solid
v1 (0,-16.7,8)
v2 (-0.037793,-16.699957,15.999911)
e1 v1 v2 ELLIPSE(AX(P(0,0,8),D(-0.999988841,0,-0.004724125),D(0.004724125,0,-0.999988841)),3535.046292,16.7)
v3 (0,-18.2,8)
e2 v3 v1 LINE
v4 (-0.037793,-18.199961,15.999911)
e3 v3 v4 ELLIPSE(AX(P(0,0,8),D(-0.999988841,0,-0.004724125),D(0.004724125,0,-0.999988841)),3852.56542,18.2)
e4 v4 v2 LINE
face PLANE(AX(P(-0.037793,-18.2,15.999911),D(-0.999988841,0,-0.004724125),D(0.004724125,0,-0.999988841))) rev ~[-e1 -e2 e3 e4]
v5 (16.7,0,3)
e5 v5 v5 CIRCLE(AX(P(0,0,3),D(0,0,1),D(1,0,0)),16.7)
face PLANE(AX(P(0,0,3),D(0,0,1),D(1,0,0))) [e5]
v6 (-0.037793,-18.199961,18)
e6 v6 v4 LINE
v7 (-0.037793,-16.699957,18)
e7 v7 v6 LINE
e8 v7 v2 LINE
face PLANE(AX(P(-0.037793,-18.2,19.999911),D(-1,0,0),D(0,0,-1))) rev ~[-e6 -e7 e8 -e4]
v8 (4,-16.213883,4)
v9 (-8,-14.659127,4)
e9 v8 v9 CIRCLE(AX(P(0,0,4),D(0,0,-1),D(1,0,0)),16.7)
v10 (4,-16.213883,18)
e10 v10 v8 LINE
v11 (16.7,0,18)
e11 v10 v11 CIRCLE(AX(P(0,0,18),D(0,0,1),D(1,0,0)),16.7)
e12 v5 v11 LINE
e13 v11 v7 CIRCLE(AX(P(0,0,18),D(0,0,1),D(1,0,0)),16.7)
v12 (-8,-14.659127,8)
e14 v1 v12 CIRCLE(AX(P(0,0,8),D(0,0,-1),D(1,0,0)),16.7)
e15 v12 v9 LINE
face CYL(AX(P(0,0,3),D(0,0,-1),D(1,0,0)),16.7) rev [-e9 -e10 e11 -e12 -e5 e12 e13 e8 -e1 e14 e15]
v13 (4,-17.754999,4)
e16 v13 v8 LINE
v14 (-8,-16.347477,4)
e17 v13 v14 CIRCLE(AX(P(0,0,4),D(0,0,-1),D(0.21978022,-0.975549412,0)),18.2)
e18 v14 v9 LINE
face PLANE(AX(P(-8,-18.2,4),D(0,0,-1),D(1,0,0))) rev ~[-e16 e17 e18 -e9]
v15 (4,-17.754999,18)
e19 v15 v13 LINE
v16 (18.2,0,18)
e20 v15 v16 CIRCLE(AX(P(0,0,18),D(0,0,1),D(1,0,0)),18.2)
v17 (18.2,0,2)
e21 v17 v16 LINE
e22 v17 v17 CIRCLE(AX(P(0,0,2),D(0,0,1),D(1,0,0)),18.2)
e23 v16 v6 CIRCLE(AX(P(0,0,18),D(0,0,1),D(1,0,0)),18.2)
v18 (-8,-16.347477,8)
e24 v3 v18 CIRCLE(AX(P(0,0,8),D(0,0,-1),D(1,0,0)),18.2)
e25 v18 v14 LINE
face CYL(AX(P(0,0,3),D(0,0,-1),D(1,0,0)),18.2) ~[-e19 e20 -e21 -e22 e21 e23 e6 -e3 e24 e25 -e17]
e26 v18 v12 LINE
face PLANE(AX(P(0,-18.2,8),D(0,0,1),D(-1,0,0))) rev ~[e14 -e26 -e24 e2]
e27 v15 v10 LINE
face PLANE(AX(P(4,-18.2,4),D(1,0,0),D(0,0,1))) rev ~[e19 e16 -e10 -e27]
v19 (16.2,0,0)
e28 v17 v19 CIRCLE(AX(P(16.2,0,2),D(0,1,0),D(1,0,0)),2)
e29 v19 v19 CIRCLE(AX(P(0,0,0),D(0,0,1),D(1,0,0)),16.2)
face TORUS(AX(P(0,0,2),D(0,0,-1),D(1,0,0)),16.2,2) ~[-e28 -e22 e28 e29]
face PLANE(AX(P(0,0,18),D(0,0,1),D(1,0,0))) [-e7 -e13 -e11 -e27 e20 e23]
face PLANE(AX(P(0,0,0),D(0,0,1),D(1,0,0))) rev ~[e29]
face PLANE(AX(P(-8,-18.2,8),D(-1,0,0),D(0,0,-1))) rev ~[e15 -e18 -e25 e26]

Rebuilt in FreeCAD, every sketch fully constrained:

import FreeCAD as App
import Part
import Sketcher
Q = App.Units.Quantity


def edges_at(feature, points):
    """Names of the edges that pass closest to the given points."""
    edges = feature.Shape.Edges
    near = lambda p: min(range(len(edges)), key=lambda i: edges[i].distToShape(Part.Vertex(*p))[0])
    return sorted({f"Edge{near(p) + 1}" for p in points})

doc = App.newDocument("Part")
body = doc.addObject("PartDesign::Body", "Body")

sketch1 = body.newObject("Sketcher::SketchObject", "Sketch")
sketch1.AttachmentSupport = (doc.getObject("XY_Plane"), [""])
sketch1.MapMode = "FlatFace"
sketch1.addGeometry(Part.Circle(App.Vector(0, 0, 0), App.Vector(0, 0, 1), 18), False)
sketch1.addConstraint([
    Sketcher.Constraint("Coincident", 0, 3, -1, 1),
    Sketcher.Constraint("Diameter", 0, Q("36.4 mm")),
])
pad1 = body.newObject("PartDesign::Pad", "Pad")
pad1.Profile = sketch1
pad1.Length = 3

sketch2 = body.newObject("Sketcher::SketchObject", "Sketch001")
sketch2.AttachmentSupport = (doc.getObject("XY_Plane"), [""])
sketch2.MapMode = "FlatFace"
sketch2.AttachmentOffset = App.Placement(App.Vector(0, 0, 3), App.Rotation())
sketch2.addGeometry([
    Part.Circle(App.Vector(0, 0, 0), App.Vector(0, 0, 1), 18),
    Part.Circle(App.Vector(0, 0, 0), App.Vector(0, 0, 1), 17),
], False)
sketch2.addConstraint([
    Sketcher.Constraint("Coincident", 0, 3, -1, 1),
    Sketcher.Constraint("Coincident", 1, 3, -1, 1),
    Sketcher.Constraint("Diameter", 0, Q("36.4 mm")),
    Sketcher.Constraint("Diameter", 1, Q("33.4 mm")),
])
pad2 = body.newObject("PartDesign::Pad", "Pad001")
pad2.Profile = sketch2
pad2.Length = 15

sketch3 = body.newObject("Sketcher::SketchObject", "Sketch002")
sketch3.AttachmentSupport = (doc.getObject("XZ_Plane"), [""])
sketch3.MapMode = "FlatFace"
sketch3.AttachmentOffset = App.Placement(App.Vector(0, 0, 18.2), App.Rotation())
sketch3.addGeometry([
    Part.LineSegment(App.Vector(-0.038, 16, 0), App.Vector(0, 8, 0)),
    Part.LineSegment(App.Vector(0, 8, 0), App.Vector(-8, 8, 0)),
    Part.LineSegment(App.Vector(-8, 8, 0), App.Vector(-8, 4, 0)),
    Part.LineSegment(App.Vector(-8, 4, 0), App.Vector(4, 4, 0)),
    Part.LineSegment(App.Vector(4, 4, 0), App.Vector(4, 20, 0)),
    Part.LineSegment(App.Vector(4, 20, 0), App.Vector(3.962, 20, 0)),
    Part.LineSegment(App.Vector(3.962, 20, 0), App.Vector(-0.038, 20, 0)),
    Part.LineSegment(App.Vector(-0.038, 20, 0), App.Vector(-0.038, 16, 0)),
], False)
sketch3.addConstraint([
    Sketcher.Constraint("Coincident", 0, 2, 1, 1),
    Sketcher.Constraint("Coincident", 1, 2, 2, 1),
    Sketcher.Constraint("Coincident", 2, 2, 3, 1),
    Sketcher.Constraint("Coincident", 3, 2, 4, 1),
    Sketcher.Constraint("Coincident", 4, 2, 5, 1),
    Sketcher.Constraint("Coincident", 5, 2, 6, 1),
    Sketcher.Constraint("Coincident", 6, 2, 7, 1),
    Sketcher.Constraint("Coincident", 7, 2, 0, 1),
    Sketcher.Constraint("Horizontal", 1),
    Sketcher.Constraint("Vertical", 2),
    Sketcher.Constraint("Horizontal", 3),
    Sketcher.Constraint("Vertical", 4),
    Sketcher.Constraint("Horizontal", 6),
    Sketcher.Constraint("Vertical", 7),
    Sketcher.Constraint("PointOnObject", 0, 2, -2),
    Sketcher.Constraint("Equal", 6, 2),
    Sketcher.Constraint("Equal", 2, 7),
    Sketcher.Constraint("DistanceX", 1, 2, 1, 1, Q("8 mm")),
    Sketcher.Constraint("DistanceX", 3, 1, 3, 2, Q("12 mm")),
    Sketcher.Constraint("DistanceX", 6, 2, 6, 1, Q("4 mm")),
    Sketcher.Constraint("DistanceY", 4, 1, 4, 2, Q("16 mm")),
    Sketcher.Constraint("Distance", 0, Q("8 mm")),
    Sketcher.Constraint("DistanceY", -1, 1, 0, 2, Q("8 mm")),
    Sketcher.Constraint("Distance", 5, Q("0.037793 mm")),
])
pocket1 = body.newObject("PartDesign::Pocket", "Pocket")
pocket1.Profile = sketch3
pocket1.Length = 10
doc.recompute()

fillet = body.newObject("PartDesign::Fillet", "Fillet")
fillet.Base = (pocket1, edges_at(pocket1, [(-18.2, 0, 0)]))
fillet.Radius = 2

doc.recompute()
